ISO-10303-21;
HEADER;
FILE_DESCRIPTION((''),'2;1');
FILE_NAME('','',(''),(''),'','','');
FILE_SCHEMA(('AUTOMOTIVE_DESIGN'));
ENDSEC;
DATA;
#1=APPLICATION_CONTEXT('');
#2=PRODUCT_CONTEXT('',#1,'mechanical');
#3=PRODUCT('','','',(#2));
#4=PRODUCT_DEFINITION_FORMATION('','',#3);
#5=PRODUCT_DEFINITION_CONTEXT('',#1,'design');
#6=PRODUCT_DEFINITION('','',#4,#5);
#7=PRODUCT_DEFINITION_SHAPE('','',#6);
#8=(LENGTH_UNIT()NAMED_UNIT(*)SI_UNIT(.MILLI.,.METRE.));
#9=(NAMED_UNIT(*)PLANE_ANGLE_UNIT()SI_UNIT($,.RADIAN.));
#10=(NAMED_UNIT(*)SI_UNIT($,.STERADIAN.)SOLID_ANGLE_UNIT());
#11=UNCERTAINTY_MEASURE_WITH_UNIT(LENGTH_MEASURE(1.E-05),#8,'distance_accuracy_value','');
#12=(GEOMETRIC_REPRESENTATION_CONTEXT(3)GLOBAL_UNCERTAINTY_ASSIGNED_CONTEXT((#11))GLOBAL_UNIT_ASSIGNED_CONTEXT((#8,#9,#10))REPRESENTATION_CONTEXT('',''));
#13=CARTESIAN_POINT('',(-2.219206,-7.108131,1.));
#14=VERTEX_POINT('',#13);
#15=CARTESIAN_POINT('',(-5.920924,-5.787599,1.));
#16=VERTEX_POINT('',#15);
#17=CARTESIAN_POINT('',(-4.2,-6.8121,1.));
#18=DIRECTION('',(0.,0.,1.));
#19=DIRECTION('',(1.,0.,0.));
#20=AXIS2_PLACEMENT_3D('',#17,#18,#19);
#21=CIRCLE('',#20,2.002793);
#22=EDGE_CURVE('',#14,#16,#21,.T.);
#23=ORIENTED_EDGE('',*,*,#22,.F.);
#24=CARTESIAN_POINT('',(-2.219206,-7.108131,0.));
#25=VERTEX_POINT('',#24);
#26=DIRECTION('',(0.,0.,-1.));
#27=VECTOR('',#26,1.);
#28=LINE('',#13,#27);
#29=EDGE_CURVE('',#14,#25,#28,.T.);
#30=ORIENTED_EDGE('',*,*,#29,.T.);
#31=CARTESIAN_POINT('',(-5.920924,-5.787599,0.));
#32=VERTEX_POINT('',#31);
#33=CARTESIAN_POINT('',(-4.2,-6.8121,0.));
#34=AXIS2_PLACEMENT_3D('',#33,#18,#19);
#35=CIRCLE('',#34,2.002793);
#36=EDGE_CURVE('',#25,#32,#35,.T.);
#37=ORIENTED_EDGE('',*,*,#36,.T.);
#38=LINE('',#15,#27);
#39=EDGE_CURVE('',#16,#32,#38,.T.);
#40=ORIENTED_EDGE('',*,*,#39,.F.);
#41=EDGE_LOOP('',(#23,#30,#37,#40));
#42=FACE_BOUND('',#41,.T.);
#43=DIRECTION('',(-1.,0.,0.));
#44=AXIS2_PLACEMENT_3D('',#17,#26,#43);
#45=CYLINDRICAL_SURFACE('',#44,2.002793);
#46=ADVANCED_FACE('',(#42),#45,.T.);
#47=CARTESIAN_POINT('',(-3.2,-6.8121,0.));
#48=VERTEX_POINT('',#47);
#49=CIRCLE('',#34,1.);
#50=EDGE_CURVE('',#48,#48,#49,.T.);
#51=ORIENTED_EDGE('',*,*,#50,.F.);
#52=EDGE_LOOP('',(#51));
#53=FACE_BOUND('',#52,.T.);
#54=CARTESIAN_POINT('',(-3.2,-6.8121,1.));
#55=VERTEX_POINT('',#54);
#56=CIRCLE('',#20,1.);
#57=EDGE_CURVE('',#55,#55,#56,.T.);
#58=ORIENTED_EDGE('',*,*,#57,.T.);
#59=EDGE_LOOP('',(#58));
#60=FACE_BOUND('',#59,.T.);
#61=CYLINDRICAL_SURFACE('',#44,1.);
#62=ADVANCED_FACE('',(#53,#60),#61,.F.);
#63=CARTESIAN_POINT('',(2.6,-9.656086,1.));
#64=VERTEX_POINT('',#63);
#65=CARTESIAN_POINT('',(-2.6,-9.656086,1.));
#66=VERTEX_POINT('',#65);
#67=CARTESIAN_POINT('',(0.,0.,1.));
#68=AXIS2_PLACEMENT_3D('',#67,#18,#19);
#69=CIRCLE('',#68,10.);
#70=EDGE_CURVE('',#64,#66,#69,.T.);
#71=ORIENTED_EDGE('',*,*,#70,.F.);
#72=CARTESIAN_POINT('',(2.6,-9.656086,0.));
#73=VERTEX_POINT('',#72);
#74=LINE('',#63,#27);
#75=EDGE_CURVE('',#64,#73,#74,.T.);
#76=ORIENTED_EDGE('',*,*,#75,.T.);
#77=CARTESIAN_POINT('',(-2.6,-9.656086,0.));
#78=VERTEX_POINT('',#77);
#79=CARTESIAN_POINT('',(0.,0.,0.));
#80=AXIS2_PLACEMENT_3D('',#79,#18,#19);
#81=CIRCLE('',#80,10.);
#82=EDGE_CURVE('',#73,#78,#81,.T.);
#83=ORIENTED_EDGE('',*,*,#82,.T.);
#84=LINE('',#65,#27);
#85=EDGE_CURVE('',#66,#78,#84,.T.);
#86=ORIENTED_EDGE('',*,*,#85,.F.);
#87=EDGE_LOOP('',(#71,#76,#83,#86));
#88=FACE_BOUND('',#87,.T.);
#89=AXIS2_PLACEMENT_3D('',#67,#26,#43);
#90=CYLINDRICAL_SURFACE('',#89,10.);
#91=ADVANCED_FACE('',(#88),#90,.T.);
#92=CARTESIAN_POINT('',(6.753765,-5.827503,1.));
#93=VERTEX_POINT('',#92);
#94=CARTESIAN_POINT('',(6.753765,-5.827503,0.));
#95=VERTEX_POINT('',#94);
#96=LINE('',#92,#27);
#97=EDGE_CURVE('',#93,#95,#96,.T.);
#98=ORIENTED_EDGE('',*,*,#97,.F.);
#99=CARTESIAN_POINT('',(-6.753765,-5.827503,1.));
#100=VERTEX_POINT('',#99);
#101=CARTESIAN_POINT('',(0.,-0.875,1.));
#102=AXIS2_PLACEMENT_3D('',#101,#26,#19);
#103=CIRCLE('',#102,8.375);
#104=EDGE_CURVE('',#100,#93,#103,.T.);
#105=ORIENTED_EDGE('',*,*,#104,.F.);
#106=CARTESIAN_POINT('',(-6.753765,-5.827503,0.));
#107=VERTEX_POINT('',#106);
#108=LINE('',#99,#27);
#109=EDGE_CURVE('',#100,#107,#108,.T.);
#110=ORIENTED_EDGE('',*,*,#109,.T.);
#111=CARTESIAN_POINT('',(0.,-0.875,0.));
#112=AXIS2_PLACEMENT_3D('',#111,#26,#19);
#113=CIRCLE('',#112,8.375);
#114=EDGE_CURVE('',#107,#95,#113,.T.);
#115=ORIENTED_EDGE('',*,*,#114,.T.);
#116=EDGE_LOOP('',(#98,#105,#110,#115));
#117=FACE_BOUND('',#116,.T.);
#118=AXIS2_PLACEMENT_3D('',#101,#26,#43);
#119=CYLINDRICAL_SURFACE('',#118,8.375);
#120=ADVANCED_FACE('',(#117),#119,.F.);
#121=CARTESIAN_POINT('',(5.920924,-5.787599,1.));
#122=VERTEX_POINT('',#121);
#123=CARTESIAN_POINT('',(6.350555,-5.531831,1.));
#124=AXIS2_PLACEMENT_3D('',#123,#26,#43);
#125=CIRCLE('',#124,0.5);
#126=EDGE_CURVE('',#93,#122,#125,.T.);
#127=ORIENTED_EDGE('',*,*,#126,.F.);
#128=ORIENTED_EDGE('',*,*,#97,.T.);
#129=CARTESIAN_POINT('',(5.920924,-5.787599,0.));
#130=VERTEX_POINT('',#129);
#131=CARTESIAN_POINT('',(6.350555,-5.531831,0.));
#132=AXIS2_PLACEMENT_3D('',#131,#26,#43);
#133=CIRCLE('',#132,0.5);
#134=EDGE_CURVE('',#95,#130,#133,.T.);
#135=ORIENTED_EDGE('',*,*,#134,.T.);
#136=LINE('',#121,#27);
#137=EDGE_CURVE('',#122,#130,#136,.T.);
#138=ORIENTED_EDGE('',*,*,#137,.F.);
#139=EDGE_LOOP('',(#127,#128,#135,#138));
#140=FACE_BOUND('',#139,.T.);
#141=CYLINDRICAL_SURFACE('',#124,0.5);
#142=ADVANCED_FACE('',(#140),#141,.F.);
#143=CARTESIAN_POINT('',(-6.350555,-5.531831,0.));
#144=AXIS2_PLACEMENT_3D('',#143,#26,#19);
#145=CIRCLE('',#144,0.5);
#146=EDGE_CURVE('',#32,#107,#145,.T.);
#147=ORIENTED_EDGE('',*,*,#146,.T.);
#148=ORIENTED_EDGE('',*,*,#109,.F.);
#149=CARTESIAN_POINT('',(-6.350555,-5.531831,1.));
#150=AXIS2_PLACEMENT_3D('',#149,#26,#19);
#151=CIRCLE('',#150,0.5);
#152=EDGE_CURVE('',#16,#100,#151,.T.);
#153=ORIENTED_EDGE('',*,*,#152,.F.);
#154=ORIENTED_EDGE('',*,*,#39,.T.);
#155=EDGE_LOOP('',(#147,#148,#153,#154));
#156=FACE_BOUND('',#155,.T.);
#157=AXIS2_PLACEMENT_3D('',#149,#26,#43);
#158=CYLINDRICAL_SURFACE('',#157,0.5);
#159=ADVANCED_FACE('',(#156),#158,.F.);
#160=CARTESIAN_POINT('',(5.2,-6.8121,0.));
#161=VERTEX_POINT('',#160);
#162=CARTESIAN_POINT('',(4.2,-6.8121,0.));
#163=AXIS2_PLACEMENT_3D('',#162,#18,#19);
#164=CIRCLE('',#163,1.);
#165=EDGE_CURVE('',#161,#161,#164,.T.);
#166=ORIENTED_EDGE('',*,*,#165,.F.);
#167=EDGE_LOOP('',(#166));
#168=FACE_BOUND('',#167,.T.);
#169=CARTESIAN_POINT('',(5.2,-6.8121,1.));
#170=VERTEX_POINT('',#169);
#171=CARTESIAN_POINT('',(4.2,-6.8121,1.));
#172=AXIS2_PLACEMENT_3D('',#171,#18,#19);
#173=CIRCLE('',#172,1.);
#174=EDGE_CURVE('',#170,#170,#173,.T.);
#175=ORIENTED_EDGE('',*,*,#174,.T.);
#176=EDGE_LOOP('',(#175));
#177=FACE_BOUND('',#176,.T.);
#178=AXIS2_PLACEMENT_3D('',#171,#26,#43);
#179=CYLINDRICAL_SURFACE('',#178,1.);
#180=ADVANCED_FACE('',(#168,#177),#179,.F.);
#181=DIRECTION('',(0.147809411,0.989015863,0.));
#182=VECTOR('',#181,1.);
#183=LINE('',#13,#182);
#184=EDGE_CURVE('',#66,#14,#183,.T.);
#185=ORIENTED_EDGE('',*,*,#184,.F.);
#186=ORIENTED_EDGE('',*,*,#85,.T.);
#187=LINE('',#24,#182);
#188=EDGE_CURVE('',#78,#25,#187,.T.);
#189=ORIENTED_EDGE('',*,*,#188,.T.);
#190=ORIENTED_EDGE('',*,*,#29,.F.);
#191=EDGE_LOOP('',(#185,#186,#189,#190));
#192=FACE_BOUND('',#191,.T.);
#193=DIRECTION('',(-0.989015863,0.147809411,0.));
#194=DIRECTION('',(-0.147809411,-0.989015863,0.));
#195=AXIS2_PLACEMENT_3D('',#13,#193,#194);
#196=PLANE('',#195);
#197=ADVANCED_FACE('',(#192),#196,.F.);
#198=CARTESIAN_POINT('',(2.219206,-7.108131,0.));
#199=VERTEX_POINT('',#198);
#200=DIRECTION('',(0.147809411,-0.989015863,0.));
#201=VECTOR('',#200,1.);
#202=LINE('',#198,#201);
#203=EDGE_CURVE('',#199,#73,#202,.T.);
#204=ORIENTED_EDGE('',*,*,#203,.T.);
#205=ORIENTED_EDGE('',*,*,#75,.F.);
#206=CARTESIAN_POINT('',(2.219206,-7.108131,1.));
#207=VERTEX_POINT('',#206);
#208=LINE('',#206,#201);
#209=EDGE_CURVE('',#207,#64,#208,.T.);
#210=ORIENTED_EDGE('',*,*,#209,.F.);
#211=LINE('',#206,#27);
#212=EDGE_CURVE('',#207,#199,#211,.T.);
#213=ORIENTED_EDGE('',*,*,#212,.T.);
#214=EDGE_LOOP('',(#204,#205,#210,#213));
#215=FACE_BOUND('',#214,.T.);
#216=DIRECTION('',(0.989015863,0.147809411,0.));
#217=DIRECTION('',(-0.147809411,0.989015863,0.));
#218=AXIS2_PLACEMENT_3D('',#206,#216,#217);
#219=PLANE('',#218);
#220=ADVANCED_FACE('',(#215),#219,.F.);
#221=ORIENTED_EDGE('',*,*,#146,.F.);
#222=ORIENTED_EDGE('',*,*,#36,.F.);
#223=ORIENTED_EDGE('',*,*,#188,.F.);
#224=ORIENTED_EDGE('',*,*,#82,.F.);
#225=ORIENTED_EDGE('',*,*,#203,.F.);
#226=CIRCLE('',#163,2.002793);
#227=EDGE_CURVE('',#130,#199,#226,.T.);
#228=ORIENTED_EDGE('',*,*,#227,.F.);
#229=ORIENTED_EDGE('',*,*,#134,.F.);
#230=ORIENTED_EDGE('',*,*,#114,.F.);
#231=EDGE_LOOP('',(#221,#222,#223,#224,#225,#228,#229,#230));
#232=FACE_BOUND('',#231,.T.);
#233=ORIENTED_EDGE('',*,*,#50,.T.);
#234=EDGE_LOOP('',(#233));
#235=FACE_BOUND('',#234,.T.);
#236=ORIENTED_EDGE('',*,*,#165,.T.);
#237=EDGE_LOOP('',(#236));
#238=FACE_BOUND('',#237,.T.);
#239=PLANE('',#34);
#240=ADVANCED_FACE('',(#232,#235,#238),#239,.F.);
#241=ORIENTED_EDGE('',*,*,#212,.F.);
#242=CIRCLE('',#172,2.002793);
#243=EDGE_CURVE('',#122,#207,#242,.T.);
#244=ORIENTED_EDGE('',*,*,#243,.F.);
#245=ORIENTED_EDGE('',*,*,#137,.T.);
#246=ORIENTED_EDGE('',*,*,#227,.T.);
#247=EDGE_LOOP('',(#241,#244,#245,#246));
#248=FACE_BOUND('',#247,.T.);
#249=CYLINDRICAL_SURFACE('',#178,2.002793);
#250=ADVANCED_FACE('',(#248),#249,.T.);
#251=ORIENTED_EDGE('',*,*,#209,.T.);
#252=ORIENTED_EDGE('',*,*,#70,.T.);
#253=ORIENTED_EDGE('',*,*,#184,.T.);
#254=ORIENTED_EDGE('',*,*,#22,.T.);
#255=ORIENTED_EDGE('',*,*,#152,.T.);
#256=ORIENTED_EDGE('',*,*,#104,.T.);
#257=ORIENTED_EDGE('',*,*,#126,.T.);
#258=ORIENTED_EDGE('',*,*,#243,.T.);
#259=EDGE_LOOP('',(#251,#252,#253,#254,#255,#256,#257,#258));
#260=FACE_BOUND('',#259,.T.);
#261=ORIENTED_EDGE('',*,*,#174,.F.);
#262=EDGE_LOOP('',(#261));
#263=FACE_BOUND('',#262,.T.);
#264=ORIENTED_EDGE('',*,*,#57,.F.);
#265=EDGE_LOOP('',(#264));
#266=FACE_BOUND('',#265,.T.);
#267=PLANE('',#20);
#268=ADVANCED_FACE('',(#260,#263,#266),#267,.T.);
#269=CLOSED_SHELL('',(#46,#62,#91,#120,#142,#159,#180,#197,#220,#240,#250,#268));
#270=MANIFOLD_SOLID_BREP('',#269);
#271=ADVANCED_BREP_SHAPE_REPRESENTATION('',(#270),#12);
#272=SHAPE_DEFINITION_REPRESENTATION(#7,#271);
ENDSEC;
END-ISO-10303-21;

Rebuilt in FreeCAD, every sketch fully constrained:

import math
import FreeCAD as App
import Part
import Sketcher
Q = App.Units.Quantity

doc = App.newDocument("Part")
body = doc.addObject("PartDesign::Body", "Body")

sketch1 = body.newObject("Sketcher::SketchObject", "Sketch")
sketch1.AttachmentSupport = (doc.getObject("XY_Plane"), [""])
sketch1.MapMode = "FlatFace"
sketch1.addGeometry([
    Part.LineSegment(App.Vector(-2.6, -9.656086, 0), App.Vector(-2.219206, -7.108131, 0)),
    Part.ArcOfCircle(Part.Circle(App.Vector(-4.2, -6.8121, 0), App.Vector(0, 0, 1), 2.002793), math.radians(-8.5), math.radians(149.233813)),
    Part.ArcOfCircle(Part.Circle(App.Vector(-6.350555, -5.531831, 0), App.Vector(0, 0, 1), 0.5), math.radians(-143.747586), math.radians(-30.766187)),
    Part.ArcOfCircle(Part.Circle(App.Vector(0, -0.875, 0), App.Vector(0, 0, 1), 8.375), math.radians(-36.252414), math.radians(216.252414)),
    Part.ArcOfCircle(Part.Circle(App.Vector(6.350555, -5.531831, 0), App.Vector(0, 0, 1), 0.5), math.radians(-149.233813), math.radians(-36.252414)),
    Part.ArcOfCircle(Part.Circle(App.Vector(4.2, -6.8121, 0), App.Vector(0, 0, 1), 2.002793), math.radians(30.766187), math.radians(188.5)),
    Part.LineSegment(App.Vector(2.219206, -7.108131, 0), App.Vector(2.6, -9.656086, 0)),
    Part.ArcOfCircle(Part.Circle(App.Vector(0, 0, 0), App.Vector(0, 0, 1), 10), math.radians(-74.929938), math.radians(254.929938)),
    Part.Circle(App.Vector(4.2, -6.8121, 0), App.Vector(0, 0, 1), 1),
    Part.Circle(App.Vector(-4.2, -6.8121, 0), App.Vector(0, 0, 1), 1),
], False)
sketch1.addConstraint([
    Sketcher.Constraint("Tangent", 0, 2, 1, 1),
    Sketcher.Constraint("Tangent", 1, 2, 2, 2),
    Sketcher.Constraint("Tangent", 2, 1, 3, 2),
    Sketcher.Constraint("Tangent", 3, 1, 4, 2),
    Sketcher.Constraint("Tangent", 4, 1, 5, 1),
    Sketcher.Constraint("Tangent", 5, 2, 6, 1),
    Sketcher.Constraint("Coincident", 6, 2, 7, 1),
    Sketcher.Constraint("Coincident", 7, 2, 0, 1),
    Sketcher.Constraint("Coincident", 7, 3, -1, 1),
    Sketcher.Constraint("Coincident", 8, 3, 5, 3),
    Sketcher.Constraint("Coincident", 9, 3, 1, 3),
    Sketcher.Constraint("Equal", 2, 4),
    Sketcher.Constraint("Equal", 1, 5),
    Sketcher.Constraint("Equal", 8, 9),
    Sketcher.Constraint("Symmetric", 2, 3, 4, 3, -2),
    Sketcher.Constraint("Symmetric", 0, 2, 5, 2, -2),
    Sketcher.Constraint("Diameter", 8, 2.0),
    Sketcher.Constraint("Radius", 7, 10.0),
    Sketcher.Constraint("Radius", 2, 0.5),
    Sketcher.Constraint("Angle", 0, Q("81.5 deg")),
    Sketcher.Constraint("Radius", 3, 8.375),
    Sketcher.Constraint("DistanceX", 1, 3, -1, 1, 4.2),
    Sketcher.Constraint("DistanceX", -1, 1, 6, 2, 2.6),
    Sketcher.Constraint("DistanceY", 3, 3, -1, 1, 0.875),
    Sketcher.Constraint("Radius", 1, 2.002793),
])
pad1 = body.newObject("PartDesign::Pad", "Pad")
pad1.Profile = sketch1
pad1.Length = 1

doc.recompute()
